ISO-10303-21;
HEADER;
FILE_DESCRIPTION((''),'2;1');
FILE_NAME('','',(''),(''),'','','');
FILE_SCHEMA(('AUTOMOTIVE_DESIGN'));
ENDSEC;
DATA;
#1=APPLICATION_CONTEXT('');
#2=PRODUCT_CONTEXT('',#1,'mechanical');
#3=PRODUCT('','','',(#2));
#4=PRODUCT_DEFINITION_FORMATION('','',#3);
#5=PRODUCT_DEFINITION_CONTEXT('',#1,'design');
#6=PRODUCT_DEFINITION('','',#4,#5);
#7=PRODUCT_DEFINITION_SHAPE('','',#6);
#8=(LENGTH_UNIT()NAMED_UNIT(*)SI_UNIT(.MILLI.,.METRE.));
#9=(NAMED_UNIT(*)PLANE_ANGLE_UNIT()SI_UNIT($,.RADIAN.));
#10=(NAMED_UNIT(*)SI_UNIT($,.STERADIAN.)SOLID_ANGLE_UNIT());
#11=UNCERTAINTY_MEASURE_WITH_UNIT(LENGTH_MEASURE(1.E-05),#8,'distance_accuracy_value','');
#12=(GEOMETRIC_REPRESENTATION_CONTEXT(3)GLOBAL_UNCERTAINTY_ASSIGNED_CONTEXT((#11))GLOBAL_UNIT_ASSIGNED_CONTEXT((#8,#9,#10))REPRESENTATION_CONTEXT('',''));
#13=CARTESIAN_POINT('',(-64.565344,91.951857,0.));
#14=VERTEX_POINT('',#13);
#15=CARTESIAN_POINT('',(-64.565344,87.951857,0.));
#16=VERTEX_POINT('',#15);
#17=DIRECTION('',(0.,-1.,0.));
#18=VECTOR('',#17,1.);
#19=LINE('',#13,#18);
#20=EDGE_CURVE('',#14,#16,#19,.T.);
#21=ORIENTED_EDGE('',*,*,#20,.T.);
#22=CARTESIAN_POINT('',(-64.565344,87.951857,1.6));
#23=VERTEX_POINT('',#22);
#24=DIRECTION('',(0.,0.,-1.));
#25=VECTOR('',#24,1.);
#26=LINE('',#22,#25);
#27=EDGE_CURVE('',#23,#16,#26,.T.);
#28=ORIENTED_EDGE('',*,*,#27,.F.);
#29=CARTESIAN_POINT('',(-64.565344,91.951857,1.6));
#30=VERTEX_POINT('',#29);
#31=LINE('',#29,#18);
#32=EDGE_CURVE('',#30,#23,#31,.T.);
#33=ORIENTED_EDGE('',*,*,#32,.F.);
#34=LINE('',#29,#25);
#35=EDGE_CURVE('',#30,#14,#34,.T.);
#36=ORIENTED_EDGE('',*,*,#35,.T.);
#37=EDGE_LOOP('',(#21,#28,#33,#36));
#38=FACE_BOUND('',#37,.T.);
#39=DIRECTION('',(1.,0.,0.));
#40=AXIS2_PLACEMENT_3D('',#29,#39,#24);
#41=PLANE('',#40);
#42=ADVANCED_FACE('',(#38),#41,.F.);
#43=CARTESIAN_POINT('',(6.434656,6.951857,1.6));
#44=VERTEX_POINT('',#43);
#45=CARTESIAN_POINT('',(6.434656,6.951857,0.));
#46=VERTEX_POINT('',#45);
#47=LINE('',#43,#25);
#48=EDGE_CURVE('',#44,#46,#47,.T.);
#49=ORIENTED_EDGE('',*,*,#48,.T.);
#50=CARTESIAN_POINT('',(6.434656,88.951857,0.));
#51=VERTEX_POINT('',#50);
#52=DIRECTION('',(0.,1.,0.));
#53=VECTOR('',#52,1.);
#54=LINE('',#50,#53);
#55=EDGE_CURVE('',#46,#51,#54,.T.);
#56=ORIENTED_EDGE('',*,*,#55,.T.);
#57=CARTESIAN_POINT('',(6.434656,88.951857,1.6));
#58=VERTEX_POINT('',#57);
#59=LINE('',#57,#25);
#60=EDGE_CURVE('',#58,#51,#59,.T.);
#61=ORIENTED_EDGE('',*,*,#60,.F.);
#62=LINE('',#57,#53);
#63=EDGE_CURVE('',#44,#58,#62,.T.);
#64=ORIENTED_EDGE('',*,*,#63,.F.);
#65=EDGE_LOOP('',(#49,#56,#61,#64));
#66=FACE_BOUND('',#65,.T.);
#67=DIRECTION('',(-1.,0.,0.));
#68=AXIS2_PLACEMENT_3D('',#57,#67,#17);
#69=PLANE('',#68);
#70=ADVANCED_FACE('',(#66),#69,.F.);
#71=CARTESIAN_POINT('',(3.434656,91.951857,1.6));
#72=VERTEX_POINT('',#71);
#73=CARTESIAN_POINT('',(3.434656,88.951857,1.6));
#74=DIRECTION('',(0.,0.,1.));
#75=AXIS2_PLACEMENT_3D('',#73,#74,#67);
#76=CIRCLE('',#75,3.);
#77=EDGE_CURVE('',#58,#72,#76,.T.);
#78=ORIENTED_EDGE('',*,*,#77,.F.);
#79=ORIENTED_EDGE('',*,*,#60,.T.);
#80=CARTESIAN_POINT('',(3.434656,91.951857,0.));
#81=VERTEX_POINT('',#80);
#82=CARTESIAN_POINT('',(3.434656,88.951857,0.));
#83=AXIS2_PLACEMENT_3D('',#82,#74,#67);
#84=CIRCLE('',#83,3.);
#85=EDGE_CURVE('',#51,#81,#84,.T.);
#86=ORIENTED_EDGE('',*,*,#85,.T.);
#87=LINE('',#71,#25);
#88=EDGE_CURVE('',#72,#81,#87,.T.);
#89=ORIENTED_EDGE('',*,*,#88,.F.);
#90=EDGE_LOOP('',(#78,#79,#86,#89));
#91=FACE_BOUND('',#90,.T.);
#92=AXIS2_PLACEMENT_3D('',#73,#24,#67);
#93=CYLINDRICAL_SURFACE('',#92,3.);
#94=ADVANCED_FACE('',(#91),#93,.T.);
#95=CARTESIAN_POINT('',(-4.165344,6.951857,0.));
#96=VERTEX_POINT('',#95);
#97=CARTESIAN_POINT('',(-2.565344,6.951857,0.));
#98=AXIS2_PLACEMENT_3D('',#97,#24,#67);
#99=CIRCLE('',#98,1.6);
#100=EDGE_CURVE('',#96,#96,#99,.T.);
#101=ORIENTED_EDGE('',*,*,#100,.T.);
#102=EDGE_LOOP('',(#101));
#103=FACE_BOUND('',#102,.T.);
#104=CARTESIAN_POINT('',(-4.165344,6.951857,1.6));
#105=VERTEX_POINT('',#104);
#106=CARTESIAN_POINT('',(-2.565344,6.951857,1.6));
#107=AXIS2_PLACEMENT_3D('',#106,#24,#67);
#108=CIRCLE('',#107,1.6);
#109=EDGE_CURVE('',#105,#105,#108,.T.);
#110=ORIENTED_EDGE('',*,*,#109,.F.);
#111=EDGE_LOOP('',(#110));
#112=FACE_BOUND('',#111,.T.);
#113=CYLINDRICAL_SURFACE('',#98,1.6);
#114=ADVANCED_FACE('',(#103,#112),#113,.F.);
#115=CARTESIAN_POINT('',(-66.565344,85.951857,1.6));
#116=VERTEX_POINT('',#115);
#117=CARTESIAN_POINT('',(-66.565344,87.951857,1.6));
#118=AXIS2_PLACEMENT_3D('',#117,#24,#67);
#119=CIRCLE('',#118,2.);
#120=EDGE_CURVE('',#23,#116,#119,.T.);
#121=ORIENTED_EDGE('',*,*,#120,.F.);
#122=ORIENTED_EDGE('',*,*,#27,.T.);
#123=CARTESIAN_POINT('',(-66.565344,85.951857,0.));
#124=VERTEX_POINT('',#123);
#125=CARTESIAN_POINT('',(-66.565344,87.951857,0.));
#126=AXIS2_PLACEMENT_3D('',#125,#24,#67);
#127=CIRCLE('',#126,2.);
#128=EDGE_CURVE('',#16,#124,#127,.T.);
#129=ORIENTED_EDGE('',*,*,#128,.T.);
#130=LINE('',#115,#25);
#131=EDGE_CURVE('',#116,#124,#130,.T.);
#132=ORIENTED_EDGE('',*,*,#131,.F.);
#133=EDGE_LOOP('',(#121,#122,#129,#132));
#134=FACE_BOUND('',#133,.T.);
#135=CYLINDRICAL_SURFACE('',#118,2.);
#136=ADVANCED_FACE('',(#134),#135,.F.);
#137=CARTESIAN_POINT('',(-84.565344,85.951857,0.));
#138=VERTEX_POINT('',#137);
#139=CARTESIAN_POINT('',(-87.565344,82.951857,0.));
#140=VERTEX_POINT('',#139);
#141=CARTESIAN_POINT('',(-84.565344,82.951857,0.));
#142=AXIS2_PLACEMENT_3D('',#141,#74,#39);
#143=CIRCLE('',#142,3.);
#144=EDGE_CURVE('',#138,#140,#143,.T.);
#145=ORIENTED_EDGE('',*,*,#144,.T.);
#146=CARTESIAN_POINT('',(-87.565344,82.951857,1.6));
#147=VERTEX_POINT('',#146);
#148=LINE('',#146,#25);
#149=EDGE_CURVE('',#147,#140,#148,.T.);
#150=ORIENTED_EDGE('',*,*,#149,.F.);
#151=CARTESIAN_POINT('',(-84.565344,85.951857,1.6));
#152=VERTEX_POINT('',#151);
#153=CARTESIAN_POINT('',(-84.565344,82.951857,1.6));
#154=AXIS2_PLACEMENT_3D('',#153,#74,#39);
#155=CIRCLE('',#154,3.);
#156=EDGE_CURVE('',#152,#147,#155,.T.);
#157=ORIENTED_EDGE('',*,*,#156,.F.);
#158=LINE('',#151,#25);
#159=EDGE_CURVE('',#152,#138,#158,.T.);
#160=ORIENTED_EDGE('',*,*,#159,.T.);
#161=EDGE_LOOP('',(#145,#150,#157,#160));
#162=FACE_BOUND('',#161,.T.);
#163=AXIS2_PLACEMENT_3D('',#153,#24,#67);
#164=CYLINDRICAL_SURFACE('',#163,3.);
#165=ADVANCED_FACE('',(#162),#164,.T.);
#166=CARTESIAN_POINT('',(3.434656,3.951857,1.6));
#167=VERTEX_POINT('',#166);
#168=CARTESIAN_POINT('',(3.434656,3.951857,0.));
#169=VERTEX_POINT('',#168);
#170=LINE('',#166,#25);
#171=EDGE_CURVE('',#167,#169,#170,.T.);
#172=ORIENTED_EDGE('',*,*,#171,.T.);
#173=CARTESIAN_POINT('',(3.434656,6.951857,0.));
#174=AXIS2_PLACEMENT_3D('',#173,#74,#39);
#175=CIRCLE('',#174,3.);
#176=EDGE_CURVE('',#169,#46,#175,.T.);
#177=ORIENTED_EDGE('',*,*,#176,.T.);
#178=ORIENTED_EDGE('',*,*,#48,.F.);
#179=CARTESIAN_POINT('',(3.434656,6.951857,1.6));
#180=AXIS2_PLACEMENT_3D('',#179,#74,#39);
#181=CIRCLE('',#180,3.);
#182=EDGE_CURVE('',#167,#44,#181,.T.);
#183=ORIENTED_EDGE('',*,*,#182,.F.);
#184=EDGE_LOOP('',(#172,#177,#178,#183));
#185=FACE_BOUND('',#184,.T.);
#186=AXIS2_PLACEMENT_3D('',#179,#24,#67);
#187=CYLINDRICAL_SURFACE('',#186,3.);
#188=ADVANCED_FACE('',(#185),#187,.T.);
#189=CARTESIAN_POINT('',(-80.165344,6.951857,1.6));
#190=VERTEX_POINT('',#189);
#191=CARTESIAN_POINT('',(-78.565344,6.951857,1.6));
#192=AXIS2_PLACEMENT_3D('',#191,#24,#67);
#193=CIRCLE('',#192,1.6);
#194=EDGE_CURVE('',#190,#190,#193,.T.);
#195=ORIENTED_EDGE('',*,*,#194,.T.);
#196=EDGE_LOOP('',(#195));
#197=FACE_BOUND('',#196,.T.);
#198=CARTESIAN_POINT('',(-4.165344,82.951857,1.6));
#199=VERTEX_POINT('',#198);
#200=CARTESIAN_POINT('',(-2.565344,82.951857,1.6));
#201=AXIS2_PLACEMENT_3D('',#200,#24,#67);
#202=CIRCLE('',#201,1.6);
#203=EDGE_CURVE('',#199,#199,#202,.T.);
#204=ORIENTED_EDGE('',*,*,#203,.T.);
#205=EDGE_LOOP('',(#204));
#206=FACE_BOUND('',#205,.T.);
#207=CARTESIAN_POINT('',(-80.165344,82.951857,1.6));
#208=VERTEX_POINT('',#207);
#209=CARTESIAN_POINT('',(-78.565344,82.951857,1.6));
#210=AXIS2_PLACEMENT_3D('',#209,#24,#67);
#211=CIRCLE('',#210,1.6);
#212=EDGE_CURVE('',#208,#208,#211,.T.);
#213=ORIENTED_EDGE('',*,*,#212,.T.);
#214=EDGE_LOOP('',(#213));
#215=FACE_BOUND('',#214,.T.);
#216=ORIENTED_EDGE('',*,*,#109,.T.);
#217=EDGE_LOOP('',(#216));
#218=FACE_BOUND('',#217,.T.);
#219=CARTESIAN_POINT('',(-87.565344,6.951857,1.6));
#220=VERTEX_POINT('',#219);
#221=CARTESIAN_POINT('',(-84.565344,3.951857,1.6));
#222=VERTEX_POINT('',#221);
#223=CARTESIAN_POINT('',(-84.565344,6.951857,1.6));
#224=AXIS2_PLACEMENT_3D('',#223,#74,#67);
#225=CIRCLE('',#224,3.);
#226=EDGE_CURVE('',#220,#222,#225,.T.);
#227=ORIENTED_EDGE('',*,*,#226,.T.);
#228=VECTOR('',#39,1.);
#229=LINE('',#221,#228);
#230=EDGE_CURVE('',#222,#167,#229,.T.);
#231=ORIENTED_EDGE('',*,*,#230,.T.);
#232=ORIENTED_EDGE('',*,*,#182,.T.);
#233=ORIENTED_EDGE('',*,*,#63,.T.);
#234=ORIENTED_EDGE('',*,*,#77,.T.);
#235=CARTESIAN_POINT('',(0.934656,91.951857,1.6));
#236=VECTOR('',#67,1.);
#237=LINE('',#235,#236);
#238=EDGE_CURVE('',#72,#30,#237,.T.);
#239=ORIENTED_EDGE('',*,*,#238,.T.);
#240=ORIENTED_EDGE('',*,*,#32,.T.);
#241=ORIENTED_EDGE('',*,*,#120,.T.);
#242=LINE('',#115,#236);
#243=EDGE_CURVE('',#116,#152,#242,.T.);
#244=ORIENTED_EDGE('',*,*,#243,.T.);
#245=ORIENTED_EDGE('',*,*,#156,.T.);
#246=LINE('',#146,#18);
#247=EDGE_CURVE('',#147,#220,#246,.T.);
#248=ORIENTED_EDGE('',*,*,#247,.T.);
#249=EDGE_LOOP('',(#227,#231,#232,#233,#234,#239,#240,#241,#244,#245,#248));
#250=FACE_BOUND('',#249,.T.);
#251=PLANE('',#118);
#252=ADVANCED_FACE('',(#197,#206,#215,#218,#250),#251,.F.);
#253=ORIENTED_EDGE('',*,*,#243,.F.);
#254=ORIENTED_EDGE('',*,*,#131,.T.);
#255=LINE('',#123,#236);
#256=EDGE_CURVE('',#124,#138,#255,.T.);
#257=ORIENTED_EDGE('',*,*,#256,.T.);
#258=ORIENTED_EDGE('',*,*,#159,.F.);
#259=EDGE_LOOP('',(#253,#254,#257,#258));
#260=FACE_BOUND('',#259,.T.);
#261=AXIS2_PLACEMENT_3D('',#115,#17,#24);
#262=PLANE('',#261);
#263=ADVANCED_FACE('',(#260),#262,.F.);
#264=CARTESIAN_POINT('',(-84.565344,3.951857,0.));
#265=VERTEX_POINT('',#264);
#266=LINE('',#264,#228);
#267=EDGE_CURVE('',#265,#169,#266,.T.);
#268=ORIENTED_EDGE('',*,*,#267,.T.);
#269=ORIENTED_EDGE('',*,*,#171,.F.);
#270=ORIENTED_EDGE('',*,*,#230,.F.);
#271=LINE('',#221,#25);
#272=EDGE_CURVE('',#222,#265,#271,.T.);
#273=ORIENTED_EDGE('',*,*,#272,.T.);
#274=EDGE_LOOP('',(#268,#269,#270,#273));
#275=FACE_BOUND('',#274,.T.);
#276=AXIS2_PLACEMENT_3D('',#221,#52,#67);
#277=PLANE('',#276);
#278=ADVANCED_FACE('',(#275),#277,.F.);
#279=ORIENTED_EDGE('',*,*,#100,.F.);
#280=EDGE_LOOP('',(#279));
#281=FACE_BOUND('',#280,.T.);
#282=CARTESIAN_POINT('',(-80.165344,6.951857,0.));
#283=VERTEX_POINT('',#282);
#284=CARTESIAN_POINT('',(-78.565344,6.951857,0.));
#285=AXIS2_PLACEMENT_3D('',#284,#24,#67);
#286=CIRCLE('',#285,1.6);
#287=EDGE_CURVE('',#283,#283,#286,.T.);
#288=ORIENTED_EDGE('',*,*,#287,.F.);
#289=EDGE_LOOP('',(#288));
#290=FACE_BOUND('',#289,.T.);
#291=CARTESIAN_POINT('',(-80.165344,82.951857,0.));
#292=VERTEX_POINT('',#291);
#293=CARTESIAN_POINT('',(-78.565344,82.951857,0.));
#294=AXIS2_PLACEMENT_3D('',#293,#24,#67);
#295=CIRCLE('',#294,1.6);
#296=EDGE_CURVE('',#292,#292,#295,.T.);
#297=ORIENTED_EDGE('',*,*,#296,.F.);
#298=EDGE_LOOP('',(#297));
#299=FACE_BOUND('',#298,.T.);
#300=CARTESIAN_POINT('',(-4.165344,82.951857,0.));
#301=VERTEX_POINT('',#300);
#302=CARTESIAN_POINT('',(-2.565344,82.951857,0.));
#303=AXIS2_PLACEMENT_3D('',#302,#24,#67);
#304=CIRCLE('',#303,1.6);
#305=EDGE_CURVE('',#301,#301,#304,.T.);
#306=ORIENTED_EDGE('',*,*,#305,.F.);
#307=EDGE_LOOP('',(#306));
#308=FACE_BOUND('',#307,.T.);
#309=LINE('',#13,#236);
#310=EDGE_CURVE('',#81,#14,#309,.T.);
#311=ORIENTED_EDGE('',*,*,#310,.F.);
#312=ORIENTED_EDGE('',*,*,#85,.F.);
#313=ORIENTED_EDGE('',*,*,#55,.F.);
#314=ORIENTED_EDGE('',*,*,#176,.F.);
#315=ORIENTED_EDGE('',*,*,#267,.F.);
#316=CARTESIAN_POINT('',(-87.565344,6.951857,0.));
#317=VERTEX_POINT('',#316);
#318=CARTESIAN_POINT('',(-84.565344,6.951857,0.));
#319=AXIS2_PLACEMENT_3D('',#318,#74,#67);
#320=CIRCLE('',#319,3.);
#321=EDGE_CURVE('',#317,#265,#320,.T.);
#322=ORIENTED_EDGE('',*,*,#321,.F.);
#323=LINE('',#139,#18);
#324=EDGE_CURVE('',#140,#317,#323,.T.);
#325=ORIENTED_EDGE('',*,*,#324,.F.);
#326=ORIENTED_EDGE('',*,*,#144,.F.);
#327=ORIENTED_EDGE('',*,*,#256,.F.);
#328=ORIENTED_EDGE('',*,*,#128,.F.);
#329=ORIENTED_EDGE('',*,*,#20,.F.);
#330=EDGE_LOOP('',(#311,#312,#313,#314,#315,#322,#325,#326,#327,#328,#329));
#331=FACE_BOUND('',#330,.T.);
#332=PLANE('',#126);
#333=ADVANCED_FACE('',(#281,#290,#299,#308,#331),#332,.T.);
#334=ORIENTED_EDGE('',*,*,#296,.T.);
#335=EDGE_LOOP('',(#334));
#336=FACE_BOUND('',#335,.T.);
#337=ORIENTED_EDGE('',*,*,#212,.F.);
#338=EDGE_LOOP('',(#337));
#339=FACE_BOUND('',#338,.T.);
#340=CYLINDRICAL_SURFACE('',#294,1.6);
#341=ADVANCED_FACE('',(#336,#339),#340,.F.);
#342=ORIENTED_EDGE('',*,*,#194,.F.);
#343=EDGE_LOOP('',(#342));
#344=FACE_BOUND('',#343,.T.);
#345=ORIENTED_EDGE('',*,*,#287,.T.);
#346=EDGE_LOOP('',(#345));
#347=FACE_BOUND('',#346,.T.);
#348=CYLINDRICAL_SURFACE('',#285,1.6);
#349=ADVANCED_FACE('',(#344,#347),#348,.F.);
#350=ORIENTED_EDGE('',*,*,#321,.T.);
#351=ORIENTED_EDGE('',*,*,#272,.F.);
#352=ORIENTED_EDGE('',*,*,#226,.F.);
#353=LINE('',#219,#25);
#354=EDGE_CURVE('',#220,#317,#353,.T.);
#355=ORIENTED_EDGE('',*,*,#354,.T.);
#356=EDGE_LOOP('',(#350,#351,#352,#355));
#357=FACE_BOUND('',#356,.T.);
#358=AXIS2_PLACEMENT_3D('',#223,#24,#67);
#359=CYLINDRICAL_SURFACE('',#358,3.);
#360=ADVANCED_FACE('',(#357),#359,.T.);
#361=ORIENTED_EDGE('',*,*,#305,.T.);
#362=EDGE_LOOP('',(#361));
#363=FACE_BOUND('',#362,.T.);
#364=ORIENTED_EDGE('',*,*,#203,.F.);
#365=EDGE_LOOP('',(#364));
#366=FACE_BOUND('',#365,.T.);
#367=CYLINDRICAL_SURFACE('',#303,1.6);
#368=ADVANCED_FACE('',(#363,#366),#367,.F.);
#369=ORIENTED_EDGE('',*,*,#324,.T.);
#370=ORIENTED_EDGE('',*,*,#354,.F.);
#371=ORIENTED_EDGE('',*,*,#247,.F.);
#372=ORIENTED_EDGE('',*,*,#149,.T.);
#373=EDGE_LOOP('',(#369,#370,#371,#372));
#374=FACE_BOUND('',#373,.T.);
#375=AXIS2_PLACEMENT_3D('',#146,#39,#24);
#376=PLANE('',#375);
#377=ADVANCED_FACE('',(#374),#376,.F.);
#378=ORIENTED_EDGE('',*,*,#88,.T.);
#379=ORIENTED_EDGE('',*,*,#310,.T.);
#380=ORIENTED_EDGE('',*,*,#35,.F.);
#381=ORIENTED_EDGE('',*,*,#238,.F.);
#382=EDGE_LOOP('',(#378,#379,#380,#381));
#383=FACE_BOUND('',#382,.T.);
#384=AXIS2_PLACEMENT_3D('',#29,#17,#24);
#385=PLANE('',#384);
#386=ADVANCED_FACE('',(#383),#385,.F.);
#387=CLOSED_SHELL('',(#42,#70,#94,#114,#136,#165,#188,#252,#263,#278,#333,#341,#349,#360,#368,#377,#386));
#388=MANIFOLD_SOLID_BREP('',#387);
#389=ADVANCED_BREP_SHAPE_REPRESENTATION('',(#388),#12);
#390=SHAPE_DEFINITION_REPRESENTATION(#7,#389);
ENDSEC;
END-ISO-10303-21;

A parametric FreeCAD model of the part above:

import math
import FreeCAD as App
import Part
import Sketcher
from FreeCAD import Vector

doc = App.newDocument("Part")
body = doc.addObject("PartDesign::Body", "Body")

sketch1 = body.newObject("Sketcher::SketchObject", "Sketch")
sketch1.AttachmentSupport = (doc.getObject("XY_Plane"), [""])
sketch1.MapMode = "FlatFace"
sketch1.addGeometry([
    Part.LineSegment(Vector(-87.565344, 82.951857, 0), Vector(-87.565344, 6.951857, 0)),
    Part.ArcOfCircle(Part.Circle(Vector(-84.565344, 6.951857, 0), Vector(0, 0, 1), 3), math.radians(180), math.radians(270)),
    Part.LineSegment(Vector(-84.565344, 3.951857, 0), Vector(3.434656, 3.951857, 0)),
    Part.ArcOfCircle(Part.Circle(Vector(3.434656, 6.951857, 0), Vector(0, 0, 1), 3), math.radians(-90), math.radians(0)),
    Part.LineSegment(Vector(6.434656, 6.951857, 0), Vector(6.434656, 88.951857, 0)),
    Part.ArcOfCircle(Part.Circle(Vector(3.434656, 88.951857, 0), Vector(0, 0, 1), 3), math.radians(0), math.radians(90)),
    Part.LineSegment(Vector(3.434656, 91.951857, 0), Vector(-64.565344, 91.951857, 0)),
    Part.LineSegment(Vector(-64.565344, 91.951857, 0), Vector(-64.565344, 87.951857, 0)),
    Part.ArcOfCircle(Part.Circle(Vector(-66.565344, 87.951857, 0), Vector(0, 0, 1), 2), math.radians(-90), math.radians(0)),
    Part.LineSegment(Vector(-66.565344, 85.951857, 0), Vector(-84.565344, 85.951857, 0)),
    Part.ArcOfCircle(Part.Circle(Vector(-84.565344, 82.951857, 0), Vector(0, 0, 1), 3), math.radians(90), math.radians(180)),
], False)
sketch1.addConstraint([
    Sketcher.Constraint("Tangent", 0, 2, 1, 1),
    Sketcher.Constraint("Tangent", 1, 2, 2, 1),
    Sketcher.Constraint("Tangent", 2, 2, 3, 1),
    Sketcher.Constraint("Tangent", 3, 2, 4, 1),
    Sketcher.Constraint("Tangent", 4, 2, 5, 1),
    Sketcher.Constraint("Tangent", 5, 2, 6, 1),
    Sketcher.Constraint("Coincident", 6, 2, 7, 1),
    Sketcher.Constraint("Tangent", 7, 2, 8, 2),
    Sketcher.Constraint("Tangent", 8, 1, 9, 1),
    Sketcher.Constraint("Tangent", 9, 2, 10, 1),
    Sketcher.Constraint("Tangent", 10, 2, 0, 1),
    Sketcher.Constraint("Vertical", 0),
    Sketcher.Constraint("Horizontal", 2),
    Sketcher.Constraint("Vertical", 4),
    Sketcher.Constraint("Horizontal", 6),
    Sketcher.Constraint("Vertical", 7),
    Sketcher.Constraint("Horizontal", 9),
    Sketcher.Constraint("Equal", 1, 3),
    Sketcher.Constraint("Equal", 3, 5),
    Sketcher.Constraint("Equal", 5, 10),
    Sketcher.Constraint("Radius", 1, 3.0),
    Sketcher.Constraint("Radius", 8, 2.0),
    Sketcher.Constraint("DistanceX", 2, 1, 2, 2, 88.0),
    Sketcher.Constraint("DistanceX", 6, 2, 6, 1, 68.0),
    Sketcher.Constraint("DistanceY", 0, 2, 0, 1, 76.0),
    Sketcher.Constraint("DistanceY", 4, 1, 4, 2, 82.0),
    Sketcher.Constraint("DistanceX", 1, 3, -1, 1, 84.565344),
    Sketcher.Constraint("DistanceY", -1, 1, 1, 3, 6.951857),
])
pad1 = body.newObject("PartDesign::Pad", "Pad")
pad1.Profile = sketch1
pad1.Length = 1.6

sketch2 = body.newObject("Sketcher::SketchObject", "Sketch001")
sketch2.AttachmentSupport = (doc.getObject("XY_Plane"), [""])
sketch2.MapMode = "FlatFace"
sketch2.addGeometry([
    Part.Circle(Vector(-78.565344, 6.951857, 0), Vector(0, 0, 1), 1.6),
    Part.Circle(Vector(-78.565344, 82.951857, 0), Vector(0, 0, 1), 1.6),
    Part.Circle(Vector(-2.565344, 82.951857, 0), Vector(0, 0, 1), 1.6),
    Part.Circle(Vector(-2.565344, 6.951857, 0), Vector(0, 0, 1), 1.6),
], False)
sketch2.addConstraint([
    Sketcher.Constraint("Equal", 0, 1),
    Sketcher.Constraint("Equal", 1, 2),
    Sketcher.Constraint("Equal", 2, 3),
    Sketcher.Constraint("Horizontal", 1, 3, 2, 3),
    Sketcher.Constraint("Horizontal", 0, 3, 3, 3),
    Sketcher.Constraint("Vertical", 0, 3, 1, 3),
    Sketcher.Constraint("Vertical", 2, 3, 3, 3),
    Sketcher.Constraint("Diameter", 0, 3.2),
    Sketcher.Constraint("DistanceY", 0, 3, 1, 3, 76.0),
    Sketcher.Constraint("DistanceX", 1, 3, 2, 3, 76.0),
    Sketcher.Constraint("DistanceX", 0, 3, -1, 1, 78.565344),
    Sketcher.Constraint("DistanceY", -1, 1, 0, 3, 6.951857),
])
doc.recompute()
hole = body.newObject("PartDesign::Hole", "Hole")
hole.Profile = sketch2
hole.ThreadType = "None"
hole.Diameter = 3.2
hole.DepthType = "ThroughAll"
hole.Reversed = True

doc.recompute()
